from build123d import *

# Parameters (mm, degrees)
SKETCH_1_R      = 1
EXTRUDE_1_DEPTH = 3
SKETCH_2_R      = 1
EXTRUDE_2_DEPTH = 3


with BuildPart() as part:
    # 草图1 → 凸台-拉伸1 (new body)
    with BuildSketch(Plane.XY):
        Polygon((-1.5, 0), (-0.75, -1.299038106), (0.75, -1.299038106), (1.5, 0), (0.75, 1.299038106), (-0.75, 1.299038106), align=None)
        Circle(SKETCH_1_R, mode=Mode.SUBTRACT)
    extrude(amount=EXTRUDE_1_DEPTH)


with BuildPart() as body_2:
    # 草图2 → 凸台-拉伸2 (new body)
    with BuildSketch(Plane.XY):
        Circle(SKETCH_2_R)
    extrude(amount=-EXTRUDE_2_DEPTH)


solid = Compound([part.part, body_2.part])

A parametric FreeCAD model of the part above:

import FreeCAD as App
import Part
import Sketcher

V = App.Vector
Q = App.Units.Quantity

doc = App.newDocument("Part")
body = doc.addObject("PartDesign::Body", "Body")

# Sketch on XY plane
sketch1 = doc.addObject("Sketcher::SketchObject", "Sketch")
body.addObject(sketch1)
sketch1.AttachmentSupport = (doc.XY_Plane, [""])
sketch1.MapMode = "FlatFace"
sketch1.addGeometry(Part.LineSegment(V(-1.5, 0, 0), V(-0.8, -1.3, 0)), False)
sketch1.addGeometry(Part.LineSegment(V(-0.8, -1.3, 0), V(0.8, -1.3, 0)), False)
sketch1.addGeometry(Part.LineSegment(V(0.8, -1.3, 0), V(1.5, 0, 0)), False)
sketch1.addGeometry(Part.LineSegment(V(1.5, 0, 0), V(0.8, 1.3, 0)), False)
sketch1.addGeometry(Part.LineSegment(V(0.8, 1.3, 0), V(-0.8, 1.3, 0)), False)
sketch1.addGeometry(Part.LineSegment(V(-0.8, 1.3, 0), V(-1.5, 0, 0)), False)
sketch1.addGeometry(Part.Circle(V(0, 0, 0), V(0, 0, 1), 1), False)
sketch1.addConstraint(Sketcher.Constraint("Coincident", 0, 2, 1, 1))
sketch1.addConstraint(Sketcher.Constraint("Coincident", 1, 2, 2, 1))
sketch1.addConstraint(Sketcher.Constraint("Coincident", 2, 2, 3, 1))
sketch1.addConstraint(Sketcher.Constraint("Coincident", 3, 2, 4, 1))
sketch1.addConstraint(Sketcher.Constraint("Coincident", 4, 2, 5, 1))
sketch1.addConstraint(Sketcher.Constraint("Coincident", 5, 2, 0, 1))
sketch1.addConstraint(Sketcher.Constraint("Horizontal", 1))
sketch1.addConstraint(Sketcher.Constraint("Horizontal", 4))
sketch1.addConstraint(Sketcher.Constraint("Coincident", 6, 3, -1, 1))
sketch1.addConstraint(Sketcher.Constraint("Symmetric", 0, 2, 3, 2, -1, 1))
sketch1.addConstraint(Sketcher.Constraint("Symmetric", 2, 2, 5, 2, -1, 1))
sketch1.addConstraint(Sketcher.Constraint("PointOnObject", 2, 2, -1))
sketch1.addConstraint(Sketcher.Constraint("Parallel", 2, 5))
sketch1.addConstraint(Sketcher.Constraint("Vertical", 1, 2, 3, 2))
sketch1.addConstraint(Sketcher.Constraint("Diameter", 6, 2.0))
sketch1.addConstraint(Sketcher.Constraint("Angle", 0, Q("-60 deg")))
sketch1.addConstraint(Sketcher.Constraint("DistanceX", 1, 1, 1, 2, 1.5))
sketch1.addConstraint(Sketcher.Constraint("Distance", 0, 1.5))
pad1 = doc.addObject("PartDesign::Pad", "Pad")
body.addObject(pad1)
pad1.Profile = sketch1
pad1.Length = 3
body2 = doc.addObject("PartDesign::Body", "Body001")

# Sketch on XY plane
sketch2 = doc.addObject("Sketcher::SketchObject", "Sketch001")
body2.addObject(sketch2)
sketch2.AttachmentSupport = (doc.getObject("XY_Plane001"), [""])
sketch2.MapMode = "FlatFace"
sketch2.addGeometry(Part.Circle(V(0, 0, 0), V(0, 0, 1), 1), False)
sketch2.addConstraint(Sketcher.Constraint("Coincident", 0, 3, -1, 1))
sketch2.addConstraint(Sketcher.Constraint("Diameter", 0, 2.0))
pad2 = doc.addObject("PartDesign::Pad", "Pad001")
body2.addObject(pad2)
pad2.Profile = sketch2
pad2.Length = 3
pad2.Reversed = True

doc.recompute()
